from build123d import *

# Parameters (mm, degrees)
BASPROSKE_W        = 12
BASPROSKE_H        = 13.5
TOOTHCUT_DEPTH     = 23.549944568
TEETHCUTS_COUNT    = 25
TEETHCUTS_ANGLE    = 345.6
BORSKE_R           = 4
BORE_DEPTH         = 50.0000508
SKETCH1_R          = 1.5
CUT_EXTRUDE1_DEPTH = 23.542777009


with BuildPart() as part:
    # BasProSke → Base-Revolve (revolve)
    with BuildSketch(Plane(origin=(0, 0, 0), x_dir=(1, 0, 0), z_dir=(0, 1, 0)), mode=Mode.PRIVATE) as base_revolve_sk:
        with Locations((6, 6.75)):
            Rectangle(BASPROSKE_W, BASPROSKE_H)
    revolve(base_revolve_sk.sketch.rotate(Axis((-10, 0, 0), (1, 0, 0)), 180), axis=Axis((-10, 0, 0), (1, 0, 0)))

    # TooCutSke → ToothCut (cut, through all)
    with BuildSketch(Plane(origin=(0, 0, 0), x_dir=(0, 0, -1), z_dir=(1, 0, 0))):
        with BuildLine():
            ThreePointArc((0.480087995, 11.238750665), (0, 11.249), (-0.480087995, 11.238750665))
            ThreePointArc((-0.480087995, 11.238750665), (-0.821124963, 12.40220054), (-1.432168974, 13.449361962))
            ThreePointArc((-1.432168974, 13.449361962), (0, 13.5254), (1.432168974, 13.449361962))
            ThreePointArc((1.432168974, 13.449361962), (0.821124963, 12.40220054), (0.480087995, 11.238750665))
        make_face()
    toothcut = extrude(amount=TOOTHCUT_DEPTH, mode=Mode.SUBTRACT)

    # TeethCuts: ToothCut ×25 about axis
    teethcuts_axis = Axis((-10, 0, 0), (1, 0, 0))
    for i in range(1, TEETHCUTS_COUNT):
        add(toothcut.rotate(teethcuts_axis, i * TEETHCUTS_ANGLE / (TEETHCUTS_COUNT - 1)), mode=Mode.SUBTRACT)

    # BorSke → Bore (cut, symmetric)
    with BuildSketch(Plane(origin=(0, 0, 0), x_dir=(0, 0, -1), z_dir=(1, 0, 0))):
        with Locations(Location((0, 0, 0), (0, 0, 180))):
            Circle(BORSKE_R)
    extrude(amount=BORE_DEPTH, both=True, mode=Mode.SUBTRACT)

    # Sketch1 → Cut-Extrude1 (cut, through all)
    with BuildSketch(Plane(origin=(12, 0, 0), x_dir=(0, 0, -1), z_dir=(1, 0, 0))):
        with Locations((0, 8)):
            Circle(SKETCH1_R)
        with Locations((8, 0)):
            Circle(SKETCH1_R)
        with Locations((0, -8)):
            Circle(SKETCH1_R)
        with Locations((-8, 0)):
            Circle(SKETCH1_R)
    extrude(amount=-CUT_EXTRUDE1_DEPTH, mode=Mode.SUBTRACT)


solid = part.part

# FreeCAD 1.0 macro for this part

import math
import FreeCAD as App
import Part
import Sketcher
from FreeCAD import Vector
Q = App.Units.Quantity

doc = App.newDocument("Part")
body = doc.addObject("PartDesign::Body", "Body")

sketch1 = body.newObject("Sketcher::SketchObject", "Sketch")
sketch1.AttachmentSupport = (doc.getObject("XZ_Plane"), [""])
sketch1.MapMode = "FlatFace"
sketch1.addGeometry([
    Part.LineSegment(Vector(0, -13.5, 0), Vector(0, 0, 0)),
    Part.LineSegment(Vector(0, 0, 0), Vector(12, 0, 0)),
    Part.LineSegment(Vector(12, 0, 0), Vector(12, -13.5, 0)),
    Part.LineSegment(Vector(12, -13.5, 0), Vector(0, -13.5, 0)),
], False)
sketch1.addConstraint([
    Sketcher.Constraint("Coincident", 0, 2, 1, 1),
    Sketcher.Constraint("Coincident", 1, 2, 2, 1),
    Sketcher.Constraint("Coincident", 2, 2, 3, 1),
    Sketcher.Constraint("Coincident", 3, 2, 0, 1),
    Sketcher.Constraint("Vertical", 0),
    Sketcher.Constraint("Horizontal", 1),
    Sketcher.Constraint("Vertical", 2),
    Sketcher.Constraint("Horizontal", 3),
    Sketcher.Constraint("Coincident", 0, 2, -1, 1),
    Sketcher.Constraint("DistanceX", 1, 1, 1, 2, Q("12 mm")),
    Sketcher.Constraint("DistanceY", 0, 1, 0, 2, Q("13.5 mm")),
])
revolution = body.newObject("PartDesign::Revolution", "Revolution")
revolution.Profile = sketch1
revolution.ReferenceAxis = (sketch1, ["H_Axis"])
revolution.Angle = 360

sketch2 = body.newObject("Sketcher::SketchObject", "Sketch001")
sketch2.AttachmentSupport = (doc.getObject("YZ_Plane"), [""])
sketch2.MapMode = "FlatFace"
sketch2.addGeometry([
    Part.ArcOfCircle(Part.Circle(Vector(0, 0, 0), Vector(0, 0, 1), 11.249), math.radians(-2.446028), math.radians(2.446028)),
    Part.ArcOfCircle(Part.Circle(Vector(10.424401, -5.413326, 0), Vector(0, 0, 1), 5), math.radians(52.771714), math.radians(80.626478)),
    Part.ArcOfCircle(Part.Circle(Vector(0, 0, 0), Vector(0, 0, 1), 13.5254), math.radians(-6.078294), math.radians(6.078294)),
    Part.ArcOfCircle(Part.Circle(Vector(10.424401, 5.413326, 0), Vector(0, 0, 1), 5), math.radians(-80.626478), math.radians(-52.771714)),
], False)
sketch2.addConstraint([
    Sketcher.Constraint("Coincident", 0, 1, 1, 2),
    Sketcher.Constraint("Coincident", 1, 1, 2, 1),
    Sketcher.Constraint("Coincident", 2, 2, 3, 2),
    Sketcher.Constraint("Coincident", 3, 1, 0, 2),
    Sketcher.Constraint("Coincident", 0, 3, -1, 1),
    Sketcher.Constraint("Coincident", 2, 3, -1, 1),
    Sketcher.Constraint("Equal", 1, 3),
    Sketcher.Constraint("Symmetric", 1, 3, 3, 3, -1),
    Sketcher.Constraint("Radius", 1, Q("5 mm")),
    Sketcher.Constraint("Radius", 0, Q("11.249 mm")),
    Sketcher.Constraint("Radius", 2, Q("13.5254 mm")),
    Sketcher.Constraint("DistanceX", -1, 1, 1, 3, Q("10.424401 mm")),
    Sketcher.Constraint("DistanceX", -1, 1, 0, 1, Q("11.238751 mm")),
])
pocket1 = body.newObject("PartDesign::Pocket", "Pocket")
pocket1.Profile = sketch2
pocket1.Type = "ThroughAll"
pocket1.Reversed = True
doc.recompute()

polarpattern = body.newObject("PartDesign::PolarPattern", "PolarPattern")
polarpattern.Originals = [pocket1]
polarpattern.Axis = (doc.getObject("X_Axis"), [""])
polarpattern.Angle = 360
polarpattern.Occurrences = 25
body.Tip = polarpattern

sketch3 = body.newObject("Sketcher::SketchObject", "Sketch002")
sketch3.AttachmentSupport = (doc.getObject("YZ_Plane"), [""])
sketch3.MapMode = "FlatFace"
sketch3.addGeometry(Part.Circle(Vector(0, 0, 0), Vector(0, 0, 1), 4), False)
sketch3.addConstraint([
    Sketcher.Constraint("Coincident", 0, 3, -1, 1),
    Sketcher.Constraint("Diameter", 0, Q("8 mm")),
])
pocket2 = body.newObject("PartDesign::Pocket", "Pocket001")
pocket2.Profile = sketch3
pocket2.Length = 100.000102
pocket2.Midplane = True

sketch4 = body.newObject("Sketcher::SketchObject", "Sketch003")
sketch4.AttachmentSupport = (doc.getObject("YZ_Plane"), [""])
sketch4.MapMode = "FlatFace"
sketch4.AttachmentOffset = App.Placement(Vector(0, 0, 12), App.Rotation())
sketch4.addGeometry([
    Part.Circle(Vector(8, 0, 0), Vector(0, 0, 1), 1.5),
    Part.Circle(Vector(0, -8, 0), Vector(0, 0, 1), 1.5),
    Part.Circle(Vector(-8, 0, 0), Vector(0, 0, 1), 1.5),
    Part.Circle(Vector(0, 8, 0), Vector(0, 0, 1), 1.5),
], False)
sketch4.addConstraint([
    Sketcher.Constraint("Equal", 0, 1),
    Sketcher.Constraint("Equal", 1, 2),
    Sketcher.Constraint("Equal", 2, 3),
    Sketcher.Constraint("Symmetric", 0, 3, 2, 3, -1, 1),
    Sketcher.Constraint("Symmetric", 1, 3, 3, 3, -1, 1),
    Sketcher.Constraint("PointOnObject", 0, 3, -1),
    Sketcher.Constraint("PointOnObject", 1, 3, -2),
    Sketcher.Constraint("Diameter", 0, Q("3 mm")),
    Sketcher.Constraint("DistanceX", -1, 1, 0, 3, Q("8 mm")),
    Sketcher.Constraint("DistanceY", 1, 3, -1, 1, Q("8 mm")),
])
pocket3 = body.newObject("PartDesign::Pocket", "Pocket002")
pocket3.Profile = sketch4
pocket3.Type = "ThroughAll"

doc.recompute()
